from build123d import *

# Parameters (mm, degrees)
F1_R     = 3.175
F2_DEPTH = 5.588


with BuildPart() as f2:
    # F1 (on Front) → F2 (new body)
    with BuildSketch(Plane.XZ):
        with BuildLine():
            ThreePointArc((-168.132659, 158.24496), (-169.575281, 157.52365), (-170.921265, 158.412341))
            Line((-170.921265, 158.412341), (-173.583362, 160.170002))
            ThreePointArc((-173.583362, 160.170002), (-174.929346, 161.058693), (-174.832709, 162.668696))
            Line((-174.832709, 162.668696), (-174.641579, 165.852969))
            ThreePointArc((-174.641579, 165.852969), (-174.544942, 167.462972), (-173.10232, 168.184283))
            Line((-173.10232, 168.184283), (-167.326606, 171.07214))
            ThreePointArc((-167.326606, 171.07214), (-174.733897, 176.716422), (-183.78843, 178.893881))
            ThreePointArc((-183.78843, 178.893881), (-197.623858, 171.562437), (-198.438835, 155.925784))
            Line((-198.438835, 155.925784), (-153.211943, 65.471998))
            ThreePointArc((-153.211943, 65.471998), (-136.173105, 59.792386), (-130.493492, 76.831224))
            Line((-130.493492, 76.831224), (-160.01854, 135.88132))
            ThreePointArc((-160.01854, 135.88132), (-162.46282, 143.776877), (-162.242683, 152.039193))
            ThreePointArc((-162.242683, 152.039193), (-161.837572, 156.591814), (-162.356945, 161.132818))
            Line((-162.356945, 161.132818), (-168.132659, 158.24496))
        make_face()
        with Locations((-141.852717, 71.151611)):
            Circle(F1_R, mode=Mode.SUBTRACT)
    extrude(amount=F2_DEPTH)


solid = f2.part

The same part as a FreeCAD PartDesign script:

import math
import FreeCAD as App
import Part
import Sketcher
from FreeCAD import Vector
Q = App.Units.Quantity

doc = App.newDocument("Part")
body = doc.addObject("PartDesign::Body", "Body")

sketch1 = body.newObject("Sketcher::SketchObject", "Sketch")
sketch1.AttachmentSupport = (doc.getObject("XZ_Plane"), [""])
sketch1.MapMode = "FlatFace"
sketch1.addGeometry([
    Part.ArcOfCircle(Part.Circle(Vector(-169.478643, 159.133653, 0), Vector(0, 0, 1), 1.612901), math.radians(-153.434911), math.radians(-33.434996)),
    Part.LineSegment(Vector(-170.921265, 158.412341, 0), Vector(-173.583362, 160.170002, 0)),
    Part.ArcOfCircle(Part.Circle(Vector(-173.486725, 161.780004, 0), Vector(0, 0, 1), 1.6129), math.radians(146.565053), math.radians(266.565049)),
    Part.LineSegment(Vector(-174.832709, 162.668696, 0), Vector(-174.641579, 165.852969, 0)),
    Part.ArcOfCircle(Part.Circle(Vector(-173.198957, 166.57428, 0), Vector(0, 0, 1), 1.6129), math.radians(86.565047), math.radians(206.565072)),
    Part.LineSegment(Vector(-173.10232, 168.184283, 0), Vector(-167.326606, 171.07214, 0)),
    Part.ArcOfCircle(Part.Circle(Vector(-184.430874, 156.307933, 0), Vector(0, 0, 1), 22.595083), math.radians(40.800383), math.radians(88.370695)),
    Part.ArcOfCircle(Part.Circle(Vector(-184.239804, 163.0253, 0), Vector(0, 0, 1), 15.874999), math.radians(88.370688), math.radians(206.565053)),
    Part.LineSegment(Vector(-198.438835, 155.925784, 0), Vector(-153.211943, 65.471998, 0)),
    Part.ArcOfCircle(Part.Circle(Vector(-141.852718, 71.151612, 0), Vector(0, 0, 1), 12.7), math.radians(-153.434945), math.radians(26.565049)),
    Part.LineSegment(Vector(-130.493492, 76.831224, 0), Vector(-160.01854, 135.88132, 0)),
    Part.ArcOfCircle(Part.Circle(Vector(-137.300094, 147.240545, 0), Vector(0, 0, 1), 25.399995), math.radians(169.11005), math.radians(206.565055)),
    Part.ArcOfCircle(Part.Circle(Vector(-184.430901, 156.307927, 0), Vector(0, 0, 1), 22.595113), math.radians(-10.889932), math.radians(12.329707)),
    Part.LineSegment(Vector(-162.356945, 161.132818, 0), Vector(-168.132659, 158.24496, 0)),
    Part.Circle(Vector(-141.852717, 71.151611, 0), Vector(0, 0, 1), 3.175),
], False)
sketch1.addConstraint([
    Sketcher.Constraint("Coincident", 0, 1, 1, 1),
    Sketcher.Constraint("Coincident", 1, 2, 2, 2),
    Sketcher.Constraint("Coincident", 2, 1, 3, 1),
    Sketcher.Constraint("Coincident", 3, 2, 4, 2),
    Sketcher.Constraint("Coincident", 4, 1, 5, 1),
    Sketcher.Constraint("Coincident", 5, 2, 6, 1),
    Sketcher.Constraint("Coincident", 6, 2, 7, 1),
    Sketcher.Constraint("Coincident", 7, 2, 8, 1),
    Sketcher.Constraint("Coincident", 8, 2, 9, 1),
    Sketcher.Constraint("Coincident", 9, 2, 10, 1),
    Sketcher.Constraint("Coincident", 10, 2, 11, 2),
    Sketcher.Constraint("Coincident", 11, 1, 12, 1),
    Sketcher.Constraint("Coincident", 12, 2, 13, 1),
    Sketcher.Constraint("Coincident", 13, 2, 0, 2),
    Sketcher.Constraint("Coincident", 14, 3, 9, 3),
    Sketcher.Constraint("Radius", 11, Q("0.9999998 in")),
    Sketcher.Constraint("Radius", 9, Q("0.5 in")),
    Sketcher.Constraint("Diameter", 14, Q("0.25 in")),
    Sketcher.Constraint("Radius", 7, Q("0.625 in")),
    Sketcher.Constraint("Radius", 0, Q("0.0635 in")),
    Sketcher.Constraint("Radius", 2, Q("0.0635 in")),
    Sketcher.Constraint("Radius", 4, Q("0.0635 in")),
    Sketcher.Constraint("Radius", 6, 22.595083),
    Sketcher.Constraint("Radius", 12, 22.595113),
    Sketcher.Constraint("DistanceY", -1, 1, 7, 3, 163.0253),
    Sketcher.Constraint("DistanceX", 12, 3, -1, 1, 184.430901),
    Sketcher.Constraint("DistanceY", -1, 1, 8, 2, 65.471998),
    Sketcher.Constraint("DistanceY", 1, 2, 7, 3, 2.855298),
    Sketcher.Constraint("DistanceY", 4, 3, 6, 2, 12.319601),
    Sketcher.Constraint("DistanceX", 0, 3, 8, 2, 16.2667),
    Sketcher.Constraint("DistanceX", 0, 3, 12, 2, 7.121698),
    Sketcher.Constraint("DistanceY", -1, 1, 4, 3, 166.57428),
    Sketcher.Constraint("DistanceY", -1, 1, 9, 3, 71.151612),
    Sketcher.Constraint("DistanceY", -1, 1, 0, 1, 158.412341),
    Sketcher.Constraint("DistanceX", 1, 2, -1, 1, 173.583362),
    Sketcher.Constraint("DistanceX", 2, 1, -1, 1, 174.832709),
    Sketcher.Constraint("DistanceX", 3, 2, -1, 1, 174.641579),
    Sketcher.Constraint("DistanceY", -1, 1, 3, 2, 165.852969),
    Sketcher.Constraint("DistanceX", 4, 1, -1, 1, 173.10232),
    Sketcher.Constraint("DistanceY", -1, 1, 5, 2, 171.07214),
    Sketcher.Constraint("DistanceX", 6, 2, -1, 1, 183.78843),
    Sketcher.Constraint("DistanceX", 9, 2, -1, 1, 130.493492),
    Sketcher.Constraint("DistanceX", 10, 2, -1, 1, 160.01854),
    Sketcher.Constraint("DistanceY", -1, 1, 10, 2, 135.88132),
    Sketcher.Constraint("DistanceY", -1, 1, 12, 2, 161.132818),
    Sketcher.Constraint("DistanceX", 13, 2, -1, 1, 168.132659),
    Sketcher.Constraint("DistanceY", -1, 1, 13, 2, 158.24496),
    Sketcher.Constraint("DistanceX", 2, 3, 0, 3, 4.008081),
    Sketcher.Constraint("DistanceY", 0, 3, 2, 3, 2.646351),
    Sketcher.Constraint("DistanceX", 6, 3, 2, 3, 10.944149),
    Sketcher.Constraint("DistanceX", 7, 2, 6, 3, 14.007961),
    Sketcher.Constraint("DistanceX", 0, 3, 11, 1, 7.23596),
])
pad1 = body.newObject("PartDesign::Pad", "Pad")
pad1.Profile = sketch1
pad1.Length = Q("0.22 in")

doc.recompute()
